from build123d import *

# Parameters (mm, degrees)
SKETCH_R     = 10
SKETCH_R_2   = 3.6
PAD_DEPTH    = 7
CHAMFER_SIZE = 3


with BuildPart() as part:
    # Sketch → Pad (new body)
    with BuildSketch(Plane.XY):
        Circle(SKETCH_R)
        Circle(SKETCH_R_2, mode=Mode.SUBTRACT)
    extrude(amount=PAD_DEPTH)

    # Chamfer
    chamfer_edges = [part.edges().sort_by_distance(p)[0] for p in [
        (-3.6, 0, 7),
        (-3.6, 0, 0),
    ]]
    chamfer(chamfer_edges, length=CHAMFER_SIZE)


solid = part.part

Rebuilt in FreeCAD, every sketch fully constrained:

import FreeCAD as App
import Part
import Sketcher
Q = App.Units.Quantity


def edges_at(feature, points):
    """Names of the edges that pass closest to the given points."""
    edges = feature.Shape.Edges
    near = lambda p: min(range(len(edges)), key=lambda i: edges[i].distToShape(Part.Vertex(*p))[0])
    return sorted({f"Edge{near(p) + 1}" for p in points})

doc = App.newDocument("Part")
body = doc.addObject("PartDesign::Body", "Body")

# Sketch on XY plane
sketch1 = doc.addObject("Sketcher::SketchObject", "Sketch")
body.addObject(sketch1)
sketch1.AttachmentSupport = (doc.XY_Plane, [""])
sketch1.MapMode = "FlatFace"
sketch1.addGeometry([
    Part.Circle(App.Vector(0, 0, 0), App.Vector(0, 0, 1), 10),
    Part.Circle(App.Vector(0, 0, 0), App.Vector(0, 0, 1), 3.6),
], False)
sketch1.addConstraint([
    Sketcher.Constraint("Coincident", 0, 3, -1, 1),
    Sketcher.Constraint("Coincident", 1, 3, -1, 1),
    Sketcher.Constraint("Diameter", 0, Q("20 mm")),
    Sketcher.Constraint("Diameter", 1, Q("7.2 mm")),
])
pad1 = doc.addObject("PartDesign::Pad", "Pad")
body.addObject(pad1)
pad1.Profile = sketch1
pad1.Length = 7
doc.recompute()

chamfer = doc.addObject("PartDesign::Chamfer", "Chamfer")
body.addObject(chamfer)
chamfer.Base = (pad1, edges_at(pad1, [(-3.6, 0, 7), (-3.6, 0, 0)]))
chamfer.Size = 3

doc.recompute()
